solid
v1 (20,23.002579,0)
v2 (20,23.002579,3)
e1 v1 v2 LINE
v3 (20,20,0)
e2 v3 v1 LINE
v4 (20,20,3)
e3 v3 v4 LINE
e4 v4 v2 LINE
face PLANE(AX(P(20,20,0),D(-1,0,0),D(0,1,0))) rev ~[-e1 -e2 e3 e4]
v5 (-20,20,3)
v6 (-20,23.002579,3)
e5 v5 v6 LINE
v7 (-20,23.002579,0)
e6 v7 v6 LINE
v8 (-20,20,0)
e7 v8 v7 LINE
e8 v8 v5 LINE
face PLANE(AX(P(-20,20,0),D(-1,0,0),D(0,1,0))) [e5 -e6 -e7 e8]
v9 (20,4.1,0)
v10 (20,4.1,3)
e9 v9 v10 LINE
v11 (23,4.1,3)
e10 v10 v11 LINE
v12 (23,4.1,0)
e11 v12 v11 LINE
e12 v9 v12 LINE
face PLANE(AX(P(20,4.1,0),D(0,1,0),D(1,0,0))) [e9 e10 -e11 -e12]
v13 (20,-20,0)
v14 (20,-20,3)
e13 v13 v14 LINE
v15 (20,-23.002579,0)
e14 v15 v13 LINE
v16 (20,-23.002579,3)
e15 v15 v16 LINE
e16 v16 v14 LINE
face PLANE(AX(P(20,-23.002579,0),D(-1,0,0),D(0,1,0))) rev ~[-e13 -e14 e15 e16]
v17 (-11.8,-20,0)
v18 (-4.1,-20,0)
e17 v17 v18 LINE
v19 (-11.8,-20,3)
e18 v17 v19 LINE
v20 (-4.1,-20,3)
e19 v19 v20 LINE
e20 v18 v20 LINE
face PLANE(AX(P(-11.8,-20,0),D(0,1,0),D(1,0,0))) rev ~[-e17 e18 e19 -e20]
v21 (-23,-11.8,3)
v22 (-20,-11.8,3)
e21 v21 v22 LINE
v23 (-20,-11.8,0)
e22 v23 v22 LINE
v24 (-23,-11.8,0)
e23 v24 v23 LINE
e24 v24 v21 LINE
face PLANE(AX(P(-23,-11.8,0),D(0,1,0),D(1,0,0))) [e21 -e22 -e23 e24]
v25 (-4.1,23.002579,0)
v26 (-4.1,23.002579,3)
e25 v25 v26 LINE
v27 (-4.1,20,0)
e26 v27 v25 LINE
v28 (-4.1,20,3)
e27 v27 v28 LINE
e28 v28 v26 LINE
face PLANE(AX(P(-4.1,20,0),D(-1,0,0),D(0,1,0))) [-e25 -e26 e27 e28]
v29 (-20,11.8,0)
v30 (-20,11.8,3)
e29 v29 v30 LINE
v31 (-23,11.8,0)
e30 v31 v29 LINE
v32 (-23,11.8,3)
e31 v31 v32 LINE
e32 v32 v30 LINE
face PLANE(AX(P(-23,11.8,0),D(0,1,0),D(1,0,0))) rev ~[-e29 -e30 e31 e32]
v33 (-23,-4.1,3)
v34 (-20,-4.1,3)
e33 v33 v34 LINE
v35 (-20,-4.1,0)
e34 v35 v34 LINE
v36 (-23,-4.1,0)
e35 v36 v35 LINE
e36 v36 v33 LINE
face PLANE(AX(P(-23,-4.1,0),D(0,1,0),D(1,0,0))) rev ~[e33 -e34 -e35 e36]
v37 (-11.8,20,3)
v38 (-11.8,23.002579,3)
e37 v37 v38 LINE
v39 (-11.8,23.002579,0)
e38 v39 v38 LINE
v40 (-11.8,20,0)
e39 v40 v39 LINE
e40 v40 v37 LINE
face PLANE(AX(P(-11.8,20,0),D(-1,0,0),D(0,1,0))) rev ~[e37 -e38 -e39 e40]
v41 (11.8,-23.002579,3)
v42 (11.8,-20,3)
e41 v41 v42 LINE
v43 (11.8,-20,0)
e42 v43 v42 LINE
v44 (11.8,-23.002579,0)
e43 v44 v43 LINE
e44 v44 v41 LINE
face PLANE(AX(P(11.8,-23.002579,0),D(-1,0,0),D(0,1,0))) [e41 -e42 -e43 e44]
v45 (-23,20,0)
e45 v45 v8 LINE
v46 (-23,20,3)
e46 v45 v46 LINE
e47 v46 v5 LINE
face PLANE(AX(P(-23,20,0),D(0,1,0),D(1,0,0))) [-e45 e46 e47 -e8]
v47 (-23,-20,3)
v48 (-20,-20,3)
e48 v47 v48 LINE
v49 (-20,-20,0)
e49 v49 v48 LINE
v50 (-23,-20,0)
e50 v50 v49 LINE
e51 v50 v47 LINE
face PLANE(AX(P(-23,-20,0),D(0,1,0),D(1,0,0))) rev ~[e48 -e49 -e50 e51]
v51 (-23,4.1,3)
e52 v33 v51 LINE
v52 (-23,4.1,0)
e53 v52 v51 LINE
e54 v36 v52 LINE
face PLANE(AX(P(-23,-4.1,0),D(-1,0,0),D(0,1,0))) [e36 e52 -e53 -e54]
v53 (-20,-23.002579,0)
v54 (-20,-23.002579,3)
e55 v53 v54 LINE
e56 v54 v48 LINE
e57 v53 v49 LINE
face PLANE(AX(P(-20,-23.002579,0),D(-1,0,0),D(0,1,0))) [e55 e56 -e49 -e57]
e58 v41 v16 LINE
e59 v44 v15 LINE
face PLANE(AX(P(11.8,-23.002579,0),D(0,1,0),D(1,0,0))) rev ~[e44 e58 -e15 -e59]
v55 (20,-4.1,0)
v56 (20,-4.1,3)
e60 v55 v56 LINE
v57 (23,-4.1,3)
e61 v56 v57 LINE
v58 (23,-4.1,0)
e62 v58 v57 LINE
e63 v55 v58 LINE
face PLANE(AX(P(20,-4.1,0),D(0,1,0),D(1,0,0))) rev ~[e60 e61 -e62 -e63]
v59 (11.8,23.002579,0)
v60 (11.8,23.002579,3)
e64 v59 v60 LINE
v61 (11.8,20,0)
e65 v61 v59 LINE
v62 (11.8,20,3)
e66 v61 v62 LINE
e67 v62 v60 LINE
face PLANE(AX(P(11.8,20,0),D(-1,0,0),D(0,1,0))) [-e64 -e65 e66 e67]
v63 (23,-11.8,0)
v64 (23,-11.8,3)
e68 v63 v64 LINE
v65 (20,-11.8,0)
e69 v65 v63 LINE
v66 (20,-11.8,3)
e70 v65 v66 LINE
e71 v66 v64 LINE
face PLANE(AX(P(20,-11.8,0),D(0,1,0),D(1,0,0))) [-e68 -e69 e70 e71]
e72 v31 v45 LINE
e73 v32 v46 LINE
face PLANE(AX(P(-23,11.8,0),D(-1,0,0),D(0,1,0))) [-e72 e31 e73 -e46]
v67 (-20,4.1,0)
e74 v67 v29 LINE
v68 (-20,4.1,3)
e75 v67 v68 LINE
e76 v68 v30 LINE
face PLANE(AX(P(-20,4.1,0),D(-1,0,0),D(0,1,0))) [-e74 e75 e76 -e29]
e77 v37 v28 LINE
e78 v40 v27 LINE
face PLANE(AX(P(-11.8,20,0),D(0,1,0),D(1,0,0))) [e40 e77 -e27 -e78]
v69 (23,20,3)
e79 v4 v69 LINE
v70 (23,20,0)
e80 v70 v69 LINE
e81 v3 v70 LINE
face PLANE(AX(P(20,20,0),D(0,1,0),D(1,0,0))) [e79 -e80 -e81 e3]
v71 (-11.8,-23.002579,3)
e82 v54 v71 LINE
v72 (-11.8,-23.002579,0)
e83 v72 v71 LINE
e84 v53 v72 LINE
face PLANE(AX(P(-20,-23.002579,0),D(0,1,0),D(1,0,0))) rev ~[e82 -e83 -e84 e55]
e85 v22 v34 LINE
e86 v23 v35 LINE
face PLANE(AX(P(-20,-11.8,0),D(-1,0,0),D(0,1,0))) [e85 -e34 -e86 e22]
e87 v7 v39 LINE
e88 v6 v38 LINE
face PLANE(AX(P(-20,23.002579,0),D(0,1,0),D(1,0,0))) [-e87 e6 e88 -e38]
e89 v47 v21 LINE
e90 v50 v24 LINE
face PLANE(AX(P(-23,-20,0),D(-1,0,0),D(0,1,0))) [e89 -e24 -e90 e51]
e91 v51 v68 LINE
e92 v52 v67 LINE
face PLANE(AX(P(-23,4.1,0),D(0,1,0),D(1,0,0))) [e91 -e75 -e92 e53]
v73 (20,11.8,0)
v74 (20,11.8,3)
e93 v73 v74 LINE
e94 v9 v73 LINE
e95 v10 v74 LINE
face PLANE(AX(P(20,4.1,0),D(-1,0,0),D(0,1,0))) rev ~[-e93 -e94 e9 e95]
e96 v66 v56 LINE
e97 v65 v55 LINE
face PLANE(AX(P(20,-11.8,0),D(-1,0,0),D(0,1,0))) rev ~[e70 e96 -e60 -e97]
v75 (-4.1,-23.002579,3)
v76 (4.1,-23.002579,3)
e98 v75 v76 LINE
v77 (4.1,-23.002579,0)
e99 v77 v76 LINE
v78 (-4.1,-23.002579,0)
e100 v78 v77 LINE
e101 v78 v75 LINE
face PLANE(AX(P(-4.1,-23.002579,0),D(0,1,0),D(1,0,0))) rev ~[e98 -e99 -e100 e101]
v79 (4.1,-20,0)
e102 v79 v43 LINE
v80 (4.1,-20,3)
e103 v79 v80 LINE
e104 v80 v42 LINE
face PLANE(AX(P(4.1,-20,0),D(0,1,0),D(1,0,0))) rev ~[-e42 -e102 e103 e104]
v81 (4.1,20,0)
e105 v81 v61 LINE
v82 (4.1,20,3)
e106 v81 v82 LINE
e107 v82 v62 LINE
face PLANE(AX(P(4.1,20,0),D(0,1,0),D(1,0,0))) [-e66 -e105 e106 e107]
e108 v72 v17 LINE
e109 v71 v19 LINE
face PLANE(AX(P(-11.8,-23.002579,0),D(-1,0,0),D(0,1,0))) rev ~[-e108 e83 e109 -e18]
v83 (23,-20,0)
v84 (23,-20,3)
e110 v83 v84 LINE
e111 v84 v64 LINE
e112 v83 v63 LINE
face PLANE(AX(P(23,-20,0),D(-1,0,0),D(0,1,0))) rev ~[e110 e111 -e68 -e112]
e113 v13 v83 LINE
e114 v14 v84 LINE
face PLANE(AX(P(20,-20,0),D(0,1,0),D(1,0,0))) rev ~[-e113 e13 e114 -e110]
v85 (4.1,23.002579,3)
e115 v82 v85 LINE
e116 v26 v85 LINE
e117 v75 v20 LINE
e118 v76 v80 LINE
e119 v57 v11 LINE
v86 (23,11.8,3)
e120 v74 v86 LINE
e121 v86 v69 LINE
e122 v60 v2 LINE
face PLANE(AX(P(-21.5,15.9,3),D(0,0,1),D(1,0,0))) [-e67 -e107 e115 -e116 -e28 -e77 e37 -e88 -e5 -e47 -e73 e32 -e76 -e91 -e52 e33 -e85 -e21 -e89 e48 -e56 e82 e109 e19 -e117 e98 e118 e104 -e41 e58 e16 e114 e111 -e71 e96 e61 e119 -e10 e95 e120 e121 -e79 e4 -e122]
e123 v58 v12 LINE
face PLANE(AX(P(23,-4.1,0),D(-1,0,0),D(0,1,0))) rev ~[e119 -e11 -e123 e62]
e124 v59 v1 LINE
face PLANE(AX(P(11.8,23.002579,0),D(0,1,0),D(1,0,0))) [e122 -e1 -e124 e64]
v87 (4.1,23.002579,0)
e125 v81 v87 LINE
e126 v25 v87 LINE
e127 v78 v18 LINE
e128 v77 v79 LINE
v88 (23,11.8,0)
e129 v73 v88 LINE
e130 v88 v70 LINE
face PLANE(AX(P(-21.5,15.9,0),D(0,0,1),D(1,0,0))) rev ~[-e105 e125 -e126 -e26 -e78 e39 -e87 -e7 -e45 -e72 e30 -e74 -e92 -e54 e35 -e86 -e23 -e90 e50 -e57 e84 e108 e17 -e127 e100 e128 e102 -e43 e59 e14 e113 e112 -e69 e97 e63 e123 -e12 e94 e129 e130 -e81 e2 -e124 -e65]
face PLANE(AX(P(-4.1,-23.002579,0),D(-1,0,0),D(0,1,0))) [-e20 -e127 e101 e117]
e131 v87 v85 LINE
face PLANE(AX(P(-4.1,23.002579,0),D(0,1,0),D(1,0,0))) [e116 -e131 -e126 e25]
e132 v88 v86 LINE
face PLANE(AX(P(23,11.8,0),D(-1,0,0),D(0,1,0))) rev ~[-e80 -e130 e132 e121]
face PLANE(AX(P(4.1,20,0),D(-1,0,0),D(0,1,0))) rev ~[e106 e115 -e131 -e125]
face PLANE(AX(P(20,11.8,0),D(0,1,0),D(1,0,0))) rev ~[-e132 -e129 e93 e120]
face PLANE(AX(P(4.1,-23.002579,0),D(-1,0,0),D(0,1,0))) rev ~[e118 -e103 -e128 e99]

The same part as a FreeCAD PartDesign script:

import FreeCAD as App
import Part
import Sketcher

doc = App.newDocument("Part")
body = doc.addObject("PartDesign::Body", "Body")

sketch1 = body.newObject("Sketcher::SketchObject", "Sketch")
sketch1.AttachmentSupport = (doc.getObject("XY_Plane"), [""])
sketch1.MapMode = "FlatFace"
sketch1.addGeometry([
    Part.LineSegment(App.Vector(-23, 20, 0), App.Vector(-23, 11.8, 0)),
    Part.LineSegment(App.Vector(-23, 11.8, 0), App.Vector(-20, 11.8, 0)),
    Part.LineSegment(App.Vector(-20, 11.8, 0), App.Vector(-20, 4.1, 0)),
    Part.LineSegment(App.Vector(-20, 4.1, 0), App.Vector(-23, 4.1, 0)),
    Part.LineSegment(App.Vector(-23, 4.1, 0), App.Vector(-23, -4.1, 0)),
    Part.LineSegment(App.Vector(-23, -4.1, 0), App.Vector(-20, -4.1, 0)),
    Part.LineSegment(App.Vector(-20, -4.1, 0), App.Vector(-20, -11.8, 0)),
    Part.LineSegment(App.Vector(-20, -11.8, 0), App.Vector(-23, -11.8, 0)),
    Part.LineSegment(App.Vector(-23, -11.8, 0), App.Vector(-23, -20, 0)),
    Part.LineSegment(App.Vector(-23, -20, 0), App.Vector(-20, -20, 0)),
    Part.LineSegment(App.Vector(-20, -20, 0), App.Vector(-20, -23, 0)),
    Part.LineSegment(App.Vector(-20, -23, 0), App.Vector(-11.8, -23, 0)),
    Part.LineSegment(App.Vector(-11.8, -23, 0), App.Vector(-11.8, -20, 0)),
    Part.LineSegment(App.Vector(-11.8, -20, 0), App.Vector(-4.1, -20, 0)),
    Part.LineSegment(App.Vector(-4.1, -20, 0), App.Vector(-4.1, -23, 0)),
    Part.LineSegment(App.Vector(-4.1, -23, 0), App.Vector(4.1, -23, 0)),
    Part.LineSegment(App.Vector(4.1, -23, 0), App.Vector(4.1, -20, 0)),
    Part.LineSegment(App.Vector(4.1, -20, 0), App.Vector(11.8, -20, 0)),
    Part.LineSegment(App.Vector(11.8, -20, 0), App.Vector(11.8, -23, 0)),
    Part.LineSegment(App.Vector(11.8, -23, 0), App.Vector(20, -23, 0)),
    Part.LineSegment(App.Vector(20, -23, 0), App.Vector(20, -20, 0)),
    Part.LineSegment(App.Vector(20, -20, 0), App.Vector(23, -20, 0)),
    Part.LineSegment(App.Vector(23, -20, 0), App.Vector(23, -11.8, 0)),
    Part.LineSegment(App.Vector(23, -11.8, 0), App.Vector(20, -11.8, 0)),
    Part.LineSegment(App.Vector(20, -11.8, 0), App.Vector(20, -4.1, 0)),
    Part.LineSegment(App.Vector(20, -4.1, 0), App.Vector(23, -4.1, 0)),
    Part.LineSegment(App.Vector(23, -4.1, 0), App.Vector(23, 4.1, 0)),
    Part.LineSegment(App.Vector(23, 4.1, 0), App.Vector(20, 4.1, 0)),
    Part.LineSegment(App.Vector(20, 4.1, 0), App.Vector(20, 11.8, 0)),
    Part.LineSegment(App.Vector(20, 11.8, 0), App.Vector(23, 11.8, 0)),
    Part.LineSegment(App.Vector(23, 11.8, 0), App.Vector(23, 20, 0)),
    Part.LineSegment(App.Vector(23, 20, 0), App.Vector(20, 20, 0)),
    Part.LineSegment(App.Vector(20, 20, 0), App.Vector(20, 23, 0)),
    Part.LineSegment(App.Vector(20, 23, 0), App.Vector(11.8, 23, 0)),
    Part.LineSegment(App.Vector(11.8, 23, 0), App.Vector(11.8, 20, 0)),
    Part.LineSegment(App.Vector(11.8, 20, 0), App.Vector(4.1, 20, 0)),
    Part.LineSegment(App.Vector(4.1, 20, 0), App.Vector(4.1, 23, 0)),
    Part.LineSegment(App.Vector(4.1, 23, 0), App.Vector(-4.1, 23, 0)),
    Part.LineSegment(App.Vector(-4.1, 23, 0), App.Vector(-4.1, 20, 0)),
    Part.LineSegment(App.Vector(-4.1, 20, 0), App.Vector(-11.8, 20, 0)),
    Part.LineSegment(App.Vector(-11.8, 20, 0), App.Vector(-11.8, 23, 0)),
    Part.LineSegment(App.Vector(-11.8, 23, 0), App.Vector(-20, 23, 0)),
    Part.LineSegment(App.Vector(-20, 23, 0), App.Vector(-20, 20, 0)),
    Part.LineSegment(App.Vector(-20, 20, 0), App.Vector(-23, 20, 0)),
], False)
sketch1.addConstraint([
    Sketcher.Constraint("Coincident", 0, 2, 1, 1),
    Sketcher.Constraint("Coincident", 1, 2, 2, 1),
    Sketcher.Constraint("Coincident", 2, 2, 3, 1),
    Sketcher.Constraint("Coincident", 3, 2, 4, 1),
    Sketcher.Constraint("Coincident", 4, 2, 5, 1),
    Sketcher.Constraint("Coincident", 5, 2, 6, 1),
    Sketcher.Constraint("Coincident", 6, 2, 7, 1),
    Sketcher.Constraint("Coincident", 7, 2, 8, 1),
    Sketcher.Constraint("Coincident", 8, 2, 9, 1),
    Sketcher.Constraint("Coincident", 9, 2, 10, 1),
    Sketcher.Constraint("Coincident", 10, 2, 11, 1),
    Sketcher.Constraint("Coincident", 11, 2, 12, 1),
    Sketcher.Constraint("Coincident", 12, 2, 13, 1),
    Sketcher.Constraint("Coincident", 13, 2, 14, 1),
    Sketcher.Constraint("Coincident", 14, 2, 15, 1),
    Sketcher.Constraint("Coincident", 15, 2, 16, 1),
    Sketcher.Constraint("Coincident", 16, 2, 17, 1),
    Sketcher.Constraint("Coincident", 17, 2, 18, 1),
    Sketcher.Constraint("Coincident", 18, 2, 19, 1),
    Sketcher.Constraint("Coincident", 19, 2, 20, 1),
    Sketcher.Constraint("Coincident", 20, 2, 21, 1),
    Sketcher.Constraint("Coincident", 21, 2, 22, 1),
    Sketcher.Constraint("Coincident", 22, 2, 23, 1),
    Sketcher.Constraint("Coincident", 23, 2, 24, 1),
    Sketcher.Constraint("Coincident", 24, 2, 25, 1),
    Sketcher.Constraint("Coincident", 25, 2, 26, 1),
    Sketcher.Constraint("Coincident", 26, 2, 27, 1),
    Sketcher.Constraint("Coincident", 27, 2, 28, 1),
    Sketcher.Constraint("Coincident", 28, 2, 29, 1),
    Sketcher.Constraint("Coincident", 29, 2, 30, 1),
    Sketcher.Constraint("Coincident", 30, 2, 31, 1),
    Sketcher.Constraint("Coincident", 31, 2, 32, 1),
    Sketcher.Constraint("Coincident", 32, 2, 33, 1),
    Sketcher.Constraint("Coincident", 33, 2, 34, 1),
    Sketcher.Constraint("Coincident", 34, 2, 35, 1),
    Sketcher.Constraint("Coincident", 35, 2, 36, 1),
    Sketcher.Constraint("Coincident", 36, 2, 37, 1),
    Sketcher.Constraint("Coincident", 37, 2, 38, 1),
    Sketcher.Constraint("Coincident", 38, 2, 39, 1),
    Sketcher.Constraint("Coincident", 39, 2, 40, 1),
    Sketcher.Constraint("Coincident", 40, 2, 41, 1),
    Sketcher.Constraint("Coincident", 41, 2, 42, 1),
    Sketcher.Constraint("Coincident", 42, 2, 43, 1),
    Sketcher.Constraint("Coincident", 43, 2, 0, 1),
    Sketcher.Constraint("Vertical", 0),
    Sketcher.Constraint("Horizontal", 1),
    Sketcher.Constraint("Vertical", 2),
    Sketcher.Constraint("Horizontal", 3),
    Sketcher.Constraint("Vertical", 4),
    Sketcher.Constraint("Horizontal", 5),
    Sketcher.Constraint("Vertical", 6),
    Sketcher.Constraint("Horizontal", 7),
    Sketcher.Constraint("Vertical", 8),
    Sketcher.Constraint("Horizontal", 9),
    Sketcher.Constraint("Vertical", 10),
    Sketcher.Constraint("Horizontal", 11),
    Sketcher.Constraint("Vertical", 12),
    Sketcher.Constraint("Horizontal", 13),
    Sketcher.Constraint("Vertical", 14),
    Sketcher.Constraint("Horizontal", 15),
    Sketcher.Constraint("Vertical", 16),
    Sketcher.Constraint("Horizontal", 17),
    Sketcher.Constraint("Vertical", 18),
    Sketcher.Constraint("Horizontal", 19),
    Sketcher.Constraint("Vertical", 20),
    Sketcher.Constraint("Horizontal", 21),
    Sketcher.Constraint("Vertical", 22),
    Sketcher.Constraint("Horizontal", 23),
    Sketcher.Constraint("Vertical", 24),
    Sketcher.Constraint("Horizontal", 25),
    Sketcher.Constraint("Vertical", 26),
    Sketcher.Constraint("Horizontal", 27),
    Sketcher.Constraint("Vertical", 28),
    Sketcher.Constraint("Horizontal", 29),
    Sketcher.Constraint("Vertical", 30),
    Sketcher.Constraint("Horizontal", 31),
    Sketcher.Constraint("Vertical", 32),
    Sketcher.Constraint("Horizontal", 33),
    Sketcher.Constraint("Vertical", 34),
    Sketcher.Constraint("Horizontal", 35),
    Sketcher.Constraint("Vertical", 36),
    Sketcher.Constraint("Horizontal", 37),
    Sketcher.Constraint("Vertical", 38),
    Sketcher.Constraint("Horizontal", 39),
    Sketcher.Constraint("Vertical", 40),
    Sketcher.Constraint("Horizontal", 41),
    Sketcher.Constraint("Vertical", 42),
    Sketcher.Constraint("Horizontal", 43),
    Sketcher.Constraint("Symmetric", 0, 2, 22, 2, -1, 1),
    Sketcher.Constraint("Symmetric", 2, 2, 24, 2, -1, 1),
    Sketcher.Constraint("Symmetric", 4, 2, 26, 2, -1, 1),
    Sketcher.Constraint("Symmetric", 6, 2, 28, 2, -1, 1),
    Sketcher.Constraint("Symmetric", 8, 2, 30, 2, -1, 1),
    Sketcher.Constraint("Symmetric", 10, 2, 32, 2, -1, 1),
    Sketcher.Constraint("Symmetric", 12, 2, 34, 2, -1, 1),
    Sketcher.Constraint("Symmetric", 14, 2, 36, 2, -1, 1),
    Sketcher.Constraint("Symmetric", 16, 2, 38, 2, -1, 1),
    Sketcher.Constraint("Symmetric", 18, 2, 40, 2, -1, 1),
    Sketcher.Constraint("Symmetric", 20, 2, 42, 2, -1, 1),
    Sketcher.Constraint("Symmetric", 13, 2, 16, 2, -2),
    Sketcher.Constraint("Symmetric", 11, 2, 18, 2, -2),
    Sketcher.Constraint("Symmetric", 9, 2, 20, 2, -2),
    Sketcher.Constraint("Symmetric", 7, 2, 22, 2, -2),
    Sketcher.Constraint("Symmetric", 5, 2, 24, 2, -2),
    Sketcher.Constraint("Horizontal", 9, 2, 12, 2),
    Sketcher.Constraint("Horizontal", 11, 2, 14, 2),
    Sketcher.Constraint("Vertical", 0, 2, 3, 2),
    Sketcher.Constraint("Vertical", 6, 2, 9, 2),
    Sketcher.Constraint("Equal", 11, 15),
    Sketcher.Constraint("Equal", 41, 0),
    Sketcher.Constraint("Equal", 39, 2),
    Sketcher.Constraint("Equal", 0, 4),
    Sketcher.Constraint("DistanceX", 1, 1, 1, 2, 3.0),
    Sketcher.Constraint("DistanceX", 11, 1, 11, 2, 8.2),
    Sketcher.Constraint("DistanceX", 13, 1, 13, 2, 7.7),
    Sketcher.Constraint("DistanceY", 10, 2, 10, 1, 3.002579),
])
pad1 = body.newObject("PartDesign::Pad", "Pad")
pad1.Profile = sketch1
pad1.Length = 3

doc.recompute()
